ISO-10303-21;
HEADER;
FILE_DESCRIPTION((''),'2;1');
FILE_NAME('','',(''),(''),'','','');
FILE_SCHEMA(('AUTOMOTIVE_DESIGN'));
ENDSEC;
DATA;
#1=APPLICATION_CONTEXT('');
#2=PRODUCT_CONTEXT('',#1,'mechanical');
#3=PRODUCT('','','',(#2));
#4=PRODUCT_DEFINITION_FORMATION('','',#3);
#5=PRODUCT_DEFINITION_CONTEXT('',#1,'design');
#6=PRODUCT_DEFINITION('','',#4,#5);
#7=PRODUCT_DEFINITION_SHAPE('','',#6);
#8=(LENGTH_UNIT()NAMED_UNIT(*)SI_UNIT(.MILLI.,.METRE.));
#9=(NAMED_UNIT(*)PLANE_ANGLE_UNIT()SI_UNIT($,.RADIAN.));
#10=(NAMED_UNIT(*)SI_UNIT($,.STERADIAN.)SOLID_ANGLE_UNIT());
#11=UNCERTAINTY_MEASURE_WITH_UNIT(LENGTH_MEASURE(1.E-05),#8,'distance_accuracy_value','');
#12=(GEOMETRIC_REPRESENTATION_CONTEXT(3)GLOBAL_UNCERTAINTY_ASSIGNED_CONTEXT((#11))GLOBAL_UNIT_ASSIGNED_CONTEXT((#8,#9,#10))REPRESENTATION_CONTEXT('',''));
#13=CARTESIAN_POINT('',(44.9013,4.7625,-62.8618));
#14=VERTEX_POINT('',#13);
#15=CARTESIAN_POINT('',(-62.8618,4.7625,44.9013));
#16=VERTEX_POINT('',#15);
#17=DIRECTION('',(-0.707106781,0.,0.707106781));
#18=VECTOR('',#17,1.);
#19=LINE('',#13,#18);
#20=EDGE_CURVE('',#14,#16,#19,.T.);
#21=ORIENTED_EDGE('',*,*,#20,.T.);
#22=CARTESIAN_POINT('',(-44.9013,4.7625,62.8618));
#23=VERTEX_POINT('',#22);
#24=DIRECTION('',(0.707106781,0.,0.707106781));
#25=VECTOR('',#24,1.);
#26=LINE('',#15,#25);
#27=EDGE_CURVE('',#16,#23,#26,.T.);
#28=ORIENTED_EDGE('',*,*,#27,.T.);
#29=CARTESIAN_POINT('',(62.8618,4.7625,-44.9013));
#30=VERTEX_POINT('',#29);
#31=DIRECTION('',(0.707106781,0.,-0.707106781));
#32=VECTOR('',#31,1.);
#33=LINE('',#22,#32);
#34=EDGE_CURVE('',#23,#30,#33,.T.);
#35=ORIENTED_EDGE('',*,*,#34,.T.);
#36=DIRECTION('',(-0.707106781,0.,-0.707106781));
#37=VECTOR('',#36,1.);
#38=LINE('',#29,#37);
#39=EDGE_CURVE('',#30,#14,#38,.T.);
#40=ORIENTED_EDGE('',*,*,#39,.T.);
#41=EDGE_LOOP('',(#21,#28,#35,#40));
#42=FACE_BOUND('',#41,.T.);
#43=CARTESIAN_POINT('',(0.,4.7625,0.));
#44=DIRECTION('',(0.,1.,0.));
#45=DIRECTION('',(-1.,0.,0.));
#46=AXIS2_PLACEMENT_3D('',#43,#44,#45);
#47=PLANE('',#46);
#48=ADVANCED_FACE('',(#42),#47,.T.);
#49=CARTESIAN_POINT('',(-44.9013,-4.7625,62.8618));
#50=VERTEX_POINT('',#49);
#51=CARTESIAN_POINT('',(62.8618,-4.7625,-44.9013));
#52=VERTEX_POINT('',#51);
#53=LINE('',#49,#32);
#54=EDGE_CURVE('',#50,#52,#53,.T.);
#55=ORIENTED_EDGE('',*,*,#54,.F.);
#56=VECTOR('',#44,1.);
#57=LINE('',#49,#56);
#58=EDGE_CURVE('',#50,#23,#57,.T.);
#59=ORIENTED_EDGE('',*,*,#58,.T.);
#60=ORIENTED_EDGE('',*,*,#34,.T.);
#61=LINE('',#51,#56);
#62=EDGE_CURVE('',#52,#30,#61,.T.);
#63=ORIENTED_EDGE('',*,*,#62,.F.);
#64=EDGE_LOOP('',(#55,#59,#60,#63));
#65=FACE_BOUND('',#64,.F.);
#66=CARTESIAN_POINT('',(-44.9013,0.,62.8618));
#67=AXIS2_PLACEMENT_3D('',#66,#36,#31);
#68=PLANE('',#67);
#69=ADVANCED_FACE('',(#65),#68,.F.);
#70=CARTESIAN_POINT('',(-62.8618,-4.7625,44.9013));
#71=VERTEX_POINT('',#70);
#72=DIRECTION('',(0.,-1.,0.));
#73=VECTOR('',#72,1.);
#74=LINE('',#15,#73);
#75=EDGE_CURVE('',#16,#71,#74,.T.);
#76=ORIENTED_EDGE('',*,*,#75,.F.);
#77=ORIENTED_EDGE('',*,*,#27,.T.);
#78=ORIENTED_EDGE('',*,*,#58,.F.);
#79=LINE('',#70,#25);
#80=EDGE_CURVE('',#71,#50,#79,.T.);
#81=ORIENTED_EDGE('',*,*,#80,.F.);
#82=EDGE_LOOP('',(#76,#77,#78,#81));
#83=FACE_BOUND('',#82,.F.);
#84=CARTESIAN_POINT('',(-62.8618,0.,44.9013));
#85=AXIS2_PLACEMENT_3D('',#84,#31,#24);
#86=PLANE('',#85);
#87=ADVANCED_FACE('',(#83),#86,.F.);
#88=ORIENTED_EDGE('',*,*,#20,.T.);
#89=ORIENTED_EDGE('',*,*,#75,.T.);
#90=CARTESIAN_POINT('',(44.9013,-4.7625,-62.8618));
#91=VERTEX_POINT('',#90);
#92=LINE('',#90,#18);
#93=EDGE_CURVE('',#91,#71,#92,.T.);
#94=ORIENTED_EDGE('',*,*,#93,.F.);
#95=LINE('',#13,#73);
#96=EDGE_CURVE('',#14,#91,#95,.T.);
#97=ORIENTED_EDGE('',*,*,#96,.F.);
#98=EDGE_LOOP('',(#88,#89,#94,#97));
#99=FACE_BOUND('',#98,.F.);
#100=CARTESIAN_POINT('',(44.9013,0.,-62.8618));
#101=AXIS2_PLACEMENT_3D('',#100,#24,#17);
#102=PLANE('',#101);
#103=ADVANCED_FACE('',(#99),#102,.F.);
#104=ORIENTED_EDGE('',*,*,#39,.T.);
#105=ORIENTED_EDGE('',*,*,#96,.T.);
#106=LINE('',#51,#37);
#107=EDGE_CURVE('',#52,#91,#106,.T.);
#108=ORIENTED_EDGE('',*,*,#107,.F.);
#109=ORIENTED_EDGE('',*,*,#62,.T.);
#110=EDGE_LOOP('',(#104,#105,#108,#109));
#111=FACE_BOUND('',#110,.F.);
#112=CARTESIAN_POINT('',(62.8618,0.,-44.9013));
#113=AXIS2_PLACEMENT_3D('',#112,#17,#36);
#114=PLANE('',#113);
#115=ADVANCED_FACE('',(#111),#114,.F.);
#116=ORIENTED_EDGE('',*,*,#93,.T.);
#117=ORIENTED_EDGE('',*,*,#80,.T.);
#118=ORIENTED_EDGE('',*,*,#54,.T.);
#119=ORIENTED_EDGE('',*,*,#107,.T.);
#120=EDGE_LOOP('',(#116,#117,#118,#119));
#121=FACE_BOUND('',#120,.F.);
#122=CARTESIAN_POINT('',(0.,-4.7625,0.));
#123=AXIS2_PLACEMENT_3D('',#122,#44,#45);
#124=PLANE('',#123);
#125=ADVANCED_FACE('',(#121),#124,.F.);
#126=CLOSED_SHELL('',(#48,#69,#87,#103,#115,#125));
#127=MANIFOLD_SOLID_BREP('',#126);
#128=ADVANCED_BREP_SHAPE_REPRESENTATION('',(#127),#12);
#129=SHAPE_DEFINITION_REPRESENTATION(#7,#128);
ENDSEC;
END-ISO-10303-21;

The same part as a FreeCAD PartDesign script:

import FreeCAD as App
import Part
import Sketcher
Q = App.Units.Quantity


def add_polygon(sketch, points):
    """Adds a closed chain of lines whose ends are joined by coincident constraints."""
    first, n = sketch.GeometryCount, len(points)
    for a, b in zip(points, points[1:] + points[:1]):
        sketch.addGeometry(Part.LineSegment(App.Vector(*a, 0), App.Vector(*b, 0)), False)
    for i in range(n):
        sketch.addConstraint(Sketcher.Constraint("Coincident", first + i, 2, first + (i + 1) % n, 1))

doc = App.newDocument("Part")
body = doc.addObject("PartDesign::Body", "Body")

sketch1 = doc.addObject("Sketcher::SketchObject", "Sketch")
body.addObject(sketch1)
sketch1.AttachmentSupport = (doc.XZ_Plane, [""])
sketch1.MapMode = "FlatFace"
add_polygon(sketch1, [(-63, 45), (-45, 63), (63, -45), (45, -63)])
sketch1.addConstraint(Sketcher.Constraint("Symmetric", 0, 2, 2, 2, -1, 1))
sketch1.addConstraint(Sketcher.Constraint("Symmetric", 1, 2, 3, 2, -1, 1))
sketch1.addConstraint(Sketcher.Constraint("Perpendicular", 0, 1))
sketch1.addConstraint(Sketcher.Constraint("Distance", 0, Q("1 in")))
sketch1.addConstraint(Sketcher.Constraint("Distance", 1, Q("6 in")))
sketch1.addConstraint(Sketcher.Constraint("Angle", 2, Q("-135 deg")))
pad1 = doc.addObject("PartDesign::Pad", "Pad")
body.addObject(pad1)
pad1.Profile = sketch1
pad1.Length = Q("0.375 in")
pad1.Midplane = True

doc.recompute()
